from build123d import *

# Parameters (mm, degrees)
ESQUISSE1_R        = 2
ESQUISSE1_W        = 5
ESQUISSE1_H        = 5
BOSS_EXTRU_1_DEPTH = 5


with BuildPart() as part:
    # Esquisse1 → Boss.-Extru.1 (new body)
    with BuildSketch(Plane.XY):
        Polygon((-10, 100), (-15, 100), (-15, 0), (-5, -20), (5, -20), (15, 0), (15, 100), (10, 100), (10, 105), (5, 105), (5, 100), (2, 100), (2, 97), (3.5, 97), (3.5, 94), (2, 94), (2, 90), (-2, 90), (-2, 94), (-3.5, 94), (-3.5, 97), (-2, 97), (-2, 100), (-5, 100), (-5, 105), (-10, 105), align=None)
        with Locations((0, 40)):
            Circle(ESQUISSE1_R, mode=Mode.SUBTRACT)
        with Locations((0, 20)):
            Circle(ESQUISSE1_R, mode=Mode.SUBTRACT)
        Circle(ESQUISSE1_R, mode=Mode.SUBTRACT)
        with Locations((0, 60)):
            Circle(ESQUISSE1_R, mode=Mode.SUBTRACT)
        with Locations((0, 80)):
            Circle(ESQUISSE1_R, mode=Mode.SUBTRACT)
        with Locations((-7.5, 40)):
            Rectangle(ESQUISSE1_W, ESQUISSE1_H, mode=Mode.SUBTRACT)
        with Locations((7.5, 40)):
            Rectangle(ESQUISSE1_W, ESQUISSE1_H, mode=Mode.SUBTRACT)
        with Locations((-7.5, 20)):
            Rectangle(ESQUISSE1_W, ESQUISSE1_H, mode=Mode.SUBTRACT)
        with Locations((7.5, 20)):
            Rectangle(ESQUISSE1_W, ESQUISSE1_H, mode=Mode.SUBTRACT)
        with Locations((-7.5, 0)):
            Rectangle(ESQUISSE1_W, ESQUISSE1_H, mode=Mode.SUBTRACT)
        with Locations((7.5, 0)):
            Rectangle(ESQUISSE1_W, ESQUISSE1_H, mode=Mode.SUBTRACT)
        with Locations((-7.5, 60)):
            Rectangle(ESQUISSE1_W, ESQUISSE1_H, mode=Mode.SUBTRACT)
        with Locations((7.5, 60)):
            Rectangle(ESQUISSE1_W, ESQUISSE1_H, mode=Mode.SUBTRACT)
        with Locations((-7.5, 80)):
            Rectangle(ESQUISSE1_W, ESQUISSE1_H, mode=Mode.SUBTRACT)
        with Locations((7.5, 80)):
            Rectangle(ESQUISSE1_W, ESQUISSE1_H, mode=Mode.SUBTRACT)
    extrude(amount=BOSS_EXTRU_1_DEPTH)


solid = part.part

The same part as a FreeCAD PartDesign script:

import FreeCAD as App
import Part
import Sketcher
from FreeCAD import Vector

doc = App.newDocument("Part")
body = doc.addObject("PartDesign::Body", "Body")

sketch1 = body.newObject("Sketcher::SketchObject", "Sketch")
sketch1.AttachmentSupport = (doc.getObject("XY_Plane"), [""])
sketch1.MapMode = "FlatFace"
sketch1.addGeometry(Part.LineSegment(Vector(-10, 100, 0), Vector(-15, 100, 0)), False)
sketch1.addGeometry(Part.LineSegment(Vector(-15, 100, 0), Vector(-15, 0, 0)), False)
sketch1.addGeometry(Part.LineSegment(Vector(-15, 0, 0), Vector(-5, -20, 0)), False)
sketch1.addGeometry(Part.LineSegment(Vector(-5, -20, 0), Vector(5, -20, 0)), False)
sketch1.addGeometry(Part.LineSegment(Vector(5, -20, 0), Vector(15, 0, 0)), False)
sketch1.addGeometry(Part.LineSegment(Vector(15, 0, 0), Vector(15, 100, 0)), False)
sketch1.addGeometry(Part.LineSegment(Vector(15, 100, 0), Vector(10, 100, 0)), False)
sketch1.addGeometry(Part.LineSegment(Vector(10, 100, 0), Vector(10, 105, 0)), False)
sketch1.addGeometry(Part.LineSegment(Vector(10, 105, 0), Vector(5, 105, 0)), False)
sketch1.addGeometry(Part.LineSegment(Vector(5, 105, 0), Vector(5, 100, 0)), False)
sketch1.addGeometry(Part.LineSegment(Vector(5, 100, 0), Vector(2, 100, 0)), False)
sketch1.addGeometry(Part.LineSegment(Vector(2, 100, 0), Vector(2, 97, 0)), False)
sketch1.addGeometry(Part.LineSegment(Vector(2, 97, 0), Vector(3.5, 97, 0)), False)
sketch1.addGeometry(Part.LineSegment(Vector(3.5, 97, 0), Vector(3.5, 94, 0)), False)
sketch1.addGeometry(Part.LineSegment(Vector(3.5, 94, 0), Vector(2, 94, 0)), False)
sketch1.addGeometry(Part.LineSegment(Vector(2, 94, 0), Vector(2, 90, 0)), False)
sketch1.addGeometry(Part.LineSegment(Vector(2, 90, 0), Vector(-2, 90, 0)), False)
sketch1.addGeometry(Part.LineSegment(Vector(-2, 90, 0), Vector(-2, 94, 0)), False)
sketch1.addGeometry(Part.LineSegment(Vector(-2, 94, 0), Vector(-3.5, 94, 0)), False)
sketch1.addGeometry(Part.LineSegment(Vector(-3.5, 94, 0), Vector(-3.5, 97, 0)), False)
sketch1.addGeometry(Part.LineSegment(Vector(-3.5, 97, 0), Vector(-2, 97, 0)), False)
sketch1.addGeometry(Part.LineSegment(Vector(-2, 97, 0), Vector(-2, 100, 0)), False)
sketch1.addGeometry(Part.LineSegment(Vector(-2, 100, 0), Vector(-5, 100, 0)), False)
sketch1.addGeometry(Part.LineSegment(Vector(-5, 100, 0), Vector(-5, 105, 0)), False)
sketch1.addGeometry(Part.LineSegment(Vector(-5, 105, 0), Vector(-10, 105, 0)), False)
sketch1.addGeometry(Part.LineSegment(Vector(-10, 105, 0), Vector(-10, 100, 0)), False)
sketch1.addGeometry(Part.LineSegment(Vector(-5, -2.5, 0), Vector(-10, -2.5, 0)), False)
sketch1.addGeometry(Part.LineSegment(Vector(-10, -2.5, 0), Vector(-10, 2.5, 0)), False)
sketch1.addGeometry(Part.LineSegment(Vector(-10, 2.5, 0), Vector(-5, 2.5, 0)), False)
sketch1.addGeometry(Part.LineSegment(Vector(-5, 2.5, 0), Vector(-5, -2.5, 0)), False)
sketch1.addGeometry(Part.LineSegment(Vector(-5, 17.5, 0), Vector(-10, 17.5, 0)), False)
sketch1.addGeometry(Part.LineSegment(Vector(-10, 17.5, 0), Vector(-10, 22.5, 0)), False)
sketch1.addGeometry(Part.LineSegment(Vector(-10, 22.5, 0), Vector(-5, 22.5, 0)), False)
sketch1.addGeometry(Part.LineSegment(Vector(-5, 22.5, 0), Vector(-5, 17.5, 0)), False)
sketch1.addGeometry(Part.Circle(Vector(0, 0, 0), Vector(0, 0, 1), 2), False)
sketch1.addGeometry(Part.LineSegment(Vector(10, -2.5, 0), Vector(5, -2.5, 0)), False)
sketch1.addGeometry(Part.LineSegment(Vector(5, -2.5, 0), Vector(5, 2.5, 0)), False)
sketch1.addGeometry(Part.LineSegment(Vector(5, 2.5, 0), Vector(10, 2.5, 0)), False)
sketch1.addGeometry(Part.LineSegment(Vector(10, 2.5, 0), Vector(10, -2.5, 0)), False)
sketch1.addGeometry(Part.Circle(Vector(0, 20, 0), Vector(0, 0, 1), 2), False)
sketch1.addGeometry(Part.LineSegment(Vector(10, 17.5, 0), Vector(5, 17.5, 0)), False)
sketch1.addGeometry(Part.LineSegment(Vector(5, 17.5, 0), Vector(5, 22.5, 0)), False)
sketch1.addGeometry(Part.LineSegment(Vector(5, 22.5, 0), Vector(10, 22.5, 0)), False)
sketch1.addGeometry(Part.LineSegment(Vector(10, 22.5, 0), Vector(10, 17.5, 0)), False)
sketch1.addGeometry(Part.LineSegment(Vector(-5, 37.5, 0), Vector(-10, 37.5, 0)), False)
sketch1.addGeometry(Part.LineSegment(Vector(-10, 37.5, 0), Vector(-10, 42.5, 0)), False)
sketch1.addGeometry(Part.LineSegment(Vector(-10, 42.5, 0), Vector(-5, 42.5, 0)), False)
sketch1.addGeometry(Part.LineSegment(Vector(-5, 42.5, 0), Vector(-5, 37.5, 0)), False)
sketch1.addGeometry(Part.LineSegment(Vector(-5, 57.5, 0), Vector(-10, 57.5, 0)), False)
sketch1.addGeometry(Part.LineSegment(Vector(-10, 57.5, 0), Vector(-10, 62.5, 0)), False)
sketch1.addGeometry(Part.LineSegment(Vector(-10, 62.5, 0), Vector(-5, 62.5, 0)), False)
sketch1.addGeometry(Part.LineSegment(Vector(-5, 62.5, 0), Vector(-5, 57.5, 0)), False)
sketch1.addGeometry(Part.LineSegment(Vector(-5, 77.5, 0), Vector(-10, 77.5, 0)), False)
sketch1.addGeometry(Part.LineSegment(Vector(-10, 77.5, 0), Vector(-10, 82.5, 0)), False)
sketch1.addGeometry(Part.LineSegment(Vector(-10, 82.5, 0), Vector(-5, 82.5, 0)), False)
sketch1.addGeometry(Part.LineSegment(Vector(-5, 82.5, 0), Vector(-5, 77.5, 0)), False)
sketch1.addGeometry(Part.Circle(Vector(0, 40, 0), Vector(0, 0, 1), 2), False)
sketch1.addGeometry(Part.Circle(Vector(0, 60, 0), Vector(0, 0, 1), 2), False)
sketch1.addGeometry(Part.LineSegment(Vector(10, 37.5, 0), Vector(5, 37.5, 0)), False)
sketch1.addGeometry(Part.LineSegment(Vector(5, 37.5, 0), Vector(5, 42.5, 0)), False)
sketch1.addGeometry(Part.LineSegment(Vector(5, 42.5, 0), Vector(10, 42.5, 0)), False)
sketch1.addGeometry(Part.LineSegment(Vector(10, 42.5, 0), Vector(10, 37.5, 0)), False)
sketch1.addGeometry(Part.LineSegment(Vector(10, 57.5, 0), Vector(5, 57.5, 0)), False)
sketch1.addGeometry(Part.LineSegment(Vector(5, 57.5, 0), Vector(5, 62.5, 0)), False)
sketch1.addGeometry(Part.LineSegment(Vector(5, 62.5, 0), Vector(10, 62.5, 0)), False)
sketch1.addGeometry(Part.LineSegment(Vector(10, 62.5, 0), Vector(10, 57.5, 0)), False)
sketch1.addGeometry(Part.Circle(Vector(0, 80, 0), Vector(0, 0, 1), 2), False)
sketch1.addGeometry(Part.LineSegment(Vector(10, 77.5, 0), Vector(5, 77.5, 0)), False)
sketch1.addGeometry(Part.LineSegment(Vector(5, 77.5, 0), Vector(5, 82.5, 0)), False)
sketch1.addGeometry(Part.LineSegment(Vector(5, 82.5, 0), Vector(10, 82.5, 0)), False)
sketch1.addGeometry(Part.LineSegment(Vector(10, 82.5, 0), Vector(10, 77.5, 0)), False)
sketch1.addConstraint(Sketcher.Constraint("Coincident", 0, 2, 1, 1))
sketch1.addConstraint(Sketcher.Constraint("Coincident", 1, 2, 2, 1))
sketch1.addConstraint(Sketcher.Constraint("Coincident", 2, 2, 3, 1))
sketch1.addConstraint(Sketcher.Constraint("Coincident", 3, 2, 4, 1))
sketch1.addConstraint(Sketcher.Constraint("Coincident", 4, 2, 5, 1))
sketch1.addConstraint(Sketcher.Constraint("Coincident", 5, 2, 6, 1))
sketch1.addConstraint(Sketcher.Constraint("Coincident", 6, 2, 7, 1))
sketch1.addConstraint(Sketcher.Constraint("Coincident", 7, 2, 8, 1))
sketch1.addConstraint(Sketcher.Constraint("Coincident", 8, 2, 9, 1))
sketch1.addConstraint(Sketcher.Constraint("Coincident", 9, 2, 10, 1))
sketch1.addConstraint(Sketcher.Constraint("Coincident", 10, 2, 11, 1))
sketch1.addConstraint(Sketcher.Constraint("Coincident", 11, 2, 12, 1))
sketch1.addConstraint(Sketcher.Constraint("Coincident", 12, 2, 13, 1))
sketch1.addConstraint(Sketcher.Constraint("Coincident", 13, 2, 14, 1))
sketch1.addConstraint(Sketcher.Constraint("Coincident", 14, 2, 15, 1))
sketch1.addConstraint(Sketcher.Constraint("Coincident", 15, 2, 16, 1))
sketch1.addConstraint(Sketcher.Constraint("Coincident", 16, 2, 17, 1))
sketch1.addConstraint(Sketcher.Constraint("Coincident", 17, 2, 18, 1))
sketch1.addConstraint(Sketcher.Constraint("Coincident", 18, 2, 19, 1))
sketch1.addConstraint(Sketcher.Constraint("Coincident", 19, 2, 20, 1))
sketch1.addConstraint(Sketcher.Constraint("Coincident", 20, 2, 21, 1))
sketch1.addConstraint(Sketcher.Constraint("Coincident", 21, 2, 22, 1))
sketch1.addConstraint(Sketcher.Constraint("Coincident", 22, 2, 23, 1))
sketch1.addConstraint(Sketcher.Constraint("Coincident", 23, 2, 24, 1))
sketch1.addConstraint(Sketcher.Constraint("Coincident", 24, 2, 25, 1))
sketch1.addConstraint(Sketcher.Constraint("Coincident", 25, 2, 0, 1))
sketch1.addConstraint(Sketcher.Constraint("Coincident", 26, 2, 27, 1))
sketch1.addConstraint(Sketcher.Constraint("Coincident", 27, 2, 28, 1))
sketch1.addConstraint(Sketcher.Constraint("Coincident", 28, 2, 29, 1))
sketch1.addConstraint(Sketcher.Constraint("Coincident", 29, 2, 26, 1))
sketch1.addConstraint(Sketcher.Constraint("Coincident", 30, 2, 31, 1))
sketch1.addConstraint(Sketcher.Constraint("Coincident", 31, 2, 32, 1))
sketch1.addConstraint(Sketcher.Constraint("Coincident", 32, 2, 33, 1))
sketch1.addConstraint(Sketcher.Constraint("Coincident", 33, 2, 30, 1))
sketch1.addConstraint(Sketcher.Constraint("Coincident", 35, 2, 36, 1))
sketch1.addConstraint(Sketcher.Constraint("Coincident", 36, 2, 37, 1))
sketch1.addConstraint(Sketcher.Constraint("Coincident", 37, 2, 38, 1))
sketch1.addConstraint(Sketcher.Constraint("Coincident", 38, 2, 35, 1))
sketch1.addConstraint(Sketcher.Constraint("Coincident", 40, 2, 41, 1))
sketch1.addConstraint(Sketcher.Constraint("Coincident", 41, 2, 42, 1))
sketch1.addConstraint(Sketcher.Constraint("Coincident", 42, 2, 43, 1))
sketch1.addConstraint(Sketcher.Constraint("Coincident", 43, 2, 40, 1))
sketch1.addConstraint(Sketcher.Constraint("Coincident", 44, 2, 45, 1))
sketch1.addConstraint(Sketcher.Constraint("Coincident", 45, 2, 46, 1))
sketch1.addConstraint(Sketcher.Constraint("Coincident", 46, 2, 47, 1))
sketch1.addConstraint(Sketcher.Constraint("Coincident", 47, 2, 44, 1))
sketch1.addConstraint(Sketcher.Constraint("Coincident", 48, 2, 49, 1))
sketch1.addConstraint(Sketcher.Constraint("Coincident", 49, 2, 50, 1))
sketch1.addConstraint(Sketcher.Constraint("Coincident", 50, 2, 51, 1))
sketch1.addConstraint(Sketcher.Constraint("Coincident", 51, 2, 48, 1))
sketch1.addConstraint(Sketcher.Constraint("Coincident", 52, 2, 53, 1))
sketch1.addConstraint(Sketcher.Constraint("Coincident", 53, 2, 54, 1))
sketch1.addConstraint(Sketcher.Constraint("Coincident", 54, 2, 55, 1))
sketch1.addConstraint(Sketcher.Constraint("Coincident", 55, 2, 52, 1))
sketch1.addConstraint(Sketcher.Constraint("Coincident", 58, 2, 59, 1))
sketch1.addConstraint(Sketcher.Constraint("Coincident", 59, 2, 60, 1))
sketch1.addConstraint(Sketcher.Constraint("Coincident", 60, 2, 61, 1))
sketch1.addConstraint(Sketcher.Constraint("Coincident", 61, 2, 58, 1))
sketch1.addConstraint(Sketcher.Constraint("Coincident", 62, 2, 63, 1))
sketch1.addConstraint(Sketcher.Constraint("Coincident", 63, 2, 64, 1))
sketch1.addConstraint(Sketcher.Constraint("Coincident", 64, 2, 65, 1))
sketch1.addConstraint(Sketcher.Constraint("Coincident", 65, 2, 62, 1))
sketch1.addConstraint(Sketcher.Constraint("Coincident", 67, 2, 68, 1))
sketch1.addConstraint(Sketcher.Constraint("Coincident", 68, 2, 69, 1))
sketch1.addConstraint(Sketcher.Constraint("Coincident", 69, 2, 70, 1))
sketch1.addConstraint(Sketcher.Constraint("Coincident", 70, 2, 67, 1))
sketch1.addConstraint(Sketcher.Constraint("Horizontal", 0))
sketch1.addConstraint(Sketcher.Constraint("Vertical", 1))
sketch1.addConstraint(Sketcher.Constraint("Horizontal", 3))
sketch1.addConstraint(Sketcher.Constraint("Vertical", 5))
sketch1.addConstraint(Sketcher.Constraint("Horizontal", 6))
sketch1.addConstraint(Sketcher.Constraint("Vertical", 7))
sketch1.addConstraint(Sketcher.Constraint("Horizontal", 8))
sketch1.addConstraint(Sketcher.Constraint("Vertical", 9))
sketch1.addConstraint(Sketcher.Constraint("Horizontal", 10))
sketch1.addConstraint(Sketcher.Constraint("Vertical", 11))
sketch1.addConstraint(Sketcher.Constraint("Horizontal", 12))
sketch1.addConstraint(Sketcher.Constraint("Vertical", 13))
sketch1.addConstraint(Sketcher.Constraint("Horizontal", 14))
sketch1.addConstraint(Sketcher.Constraint("Vertical", 15))
sketch1.addConstraint(Sketcher.Constraint("Horizontal", 16))
sketch1.addConstraint(Sketcher.Constraint("Vertical", 17))
sketch1.addConstraint(Sketcher.Constraint("Horizontal", 18))
sketch1.addConstraint(Sketcher.Constraint("Vertical", 19))
sketch1.addConstraint(Sketcher.Constraint("Horizontal", 20))
sketch1.addConstraint(Sketcher.Constraint("Vertical", 21))
sketch1.addConstraint(Sketcher.Constraint("Horizontal", 22))
sketch1.addConstraint(Sketcher.Constraint("Vertical", 23))
sketch1.addConstraint(Sketcher.Constraint("Horizontal", 24))
sketch1.addConstraint(Sketcher.Constraint("Vertical", 25))
sketch1.addConstraint(Sketcher.Constraint("Horizontal", 26))
sketch1.addConstraint(Sketcher.Constraint("Vertical", 27))
sketch1.addConstraint(Sketcher.Constraint("Horizontal", 28))
sketch1.addConstraint(Sketcher.Constraint("Vertical", 29))
sketch1.addConstraint(Sketcher.Constraint("Horizontal", 30))
sketch1.addConstraint(Sketcher.Constraint("Vertical", 31))
sketch1.addConstraint(Sketcher.Constraint("Horizontal", 32))
sketch1.addConstraint(Sketcher.Constraint("Vertical", 33))
sketch1.addConstraint(Sketcher.Constraint("Horizontal", 35))
sketch1.addConstraint(Sketcher.Constraint("Vertical", 36))
sketch1.addConstraint(Sketcher.Constraint("Horizontal", 37))
sketch1.addConstraint(Sketcher.Constraint("Vertical", 38))
sketch1.addConstraint(Sketcher.Constraint("Horizontal", 40))
sketch1.addConstraint(Sketcher.Constraint("Vertical", 41))
sketch1.addConstraint(Sketcher.Constraint("Horizontal", 42))
sketch1.addConstraint(Sketcher.Constraint("Vertical", 43))
sketch1.addConstraint(Sketcher.Constraint("Horizontal", 44))
sketch1.addConstraint(Sketcher.Constraint("Vertical", 45))
sketch1.addConstraint(Sketcher.Constraint("Horizontal", 46))
sketch1.addConstraint(Sketcher.Constraint("Vertical", 47))
sketch1.addConstraint(Sketcher.Constraint("Horizontal", 48))
sketch1.addConstraint(Sketcher.Constraint("Vertical", 49))
sketch1.addConstraint(Sketcher.Constraint("Horizontal", 50))
sketch1.addConstraint(Sketcher.Constraint("Vertical", 51))
sketch1.addConstraint(Sketcher.Constraint("Horizontal", 52))
sketch1.addConstraint(Sketcher.Constraint("Vertical", 53))
sketch1.addConstraint(Sketcher.Constraint("Horizontal", 54))
sketch1.addConstraint(Sketcher.Constraint("Vertical", 55))
sketch1.addConstraint(Sketcher.Constraint("Horizontal", 58))
sketch1.addConstraint(Sketcher.Constraint("Vertical", 59))
sketch1.addConstraint(Sketcher.Constraint("Horizontal", 60))
sketch1.addConstraint(Sketcher.Constraint("Vertical", 61))
sketch1.addConstraint(Sketcher.Constraint("Horizontal", 62))
sketch1.addConstraint(Sketcher.Constraint("Vertical", 63))
sketch1.addConstraint(Sketcher.Constraint("Horizontal", 64))
sketch1.addConstraint(Sketcher.Constraint("Vertical", 65))
sketch1.addConstraint(Sketcher.Constraint("Horizontal", 67))
sketch1.addConstraint(Sketcher.Constraint("Vertical", 68))
sketch1.addConstraint(Sketcher.Constraint("Horizontal", 69))
sketch1.addConstraint(Sketcher.Constraint("Vertical", 70))
sketch1.addConstraint(Sketcher.Constraint("Coincident", 34, 3, -1, 1))
sketch1.addConstraint(Sketcher.Constraint("Equal", 34, 39))
sketch1.addConstraint(Sketcher.Constraint("Equal", 39, 56))
sketch1.addConstraint(Sketcher.Constraint("Equal", 56, 57))
sketch1.addConstraint(Sketcher.Constraint("Equal", 57, 66))
sketch1.addConstraint(Sketcher.Constraint("Symmetric", 1, 2, 4, 2, -1, 1))
sketch1.addConstraint(Sketcher.Constraint("Symmetric", 28, 2, 35, 2, -1, 1))
sketch1.addConstraint(Sketcher.Constraint("Symmetric", 26, 2, 37, 2, -1, 1))
sketch1.addConstraint(Sketcher.Constraint("Symmetric", 14, 2, 17, 2, -2))
sketch1.addConstraint(Sketcher.Constraint("Symmetric", 12, 2, 19, 2, -2))
sketch1.addConstraint(Sketcher.Constraint("Symmetric", 10, 2, 21, 2, -2))
sketch1.addConstraint(Sketcher.Constraint("Symmetric", 8, 2, 23, 2, -2))
sketch1.addConstraint(Sketcher.Constraint("Symmetric", 6, 2, 25, 2, -2))
sketch1.addConstraint(Sketcher.Constraint("Symmetric", 33, 2, 40, 2, -2))
sketch1.addConstraint(Sketcher.Constraint("Symmetric", 31, 2, 42, 2, -2))
sketch1.addConstraint(Sketcher.Constraint("Symmetric", 47, 2, 58, 2, -2))
sketch1.addConstraint(Sketcher.Constraint("Symmetric", 45, 2, 60, 2, -2))
sketch1.addConstraint(Sketcher.Constraint("Symmetric", 51, 2, 62, 2, -2))
sketch1.addConstraint(Sketcher.Constraint("Symmetric", 49, 2, 64, 2, -2))
sketch1.addConstraint(Sketcher.Constraint("Symmetric", 55, 2, 67, 2, -2))
sketch1.addConstraint(Sketcher.Constraint("Symmetric", 53, 2, 69, 2, -2))
sketch1.addConstraint(Sketcher.Constraint("PointOnObject", 39, 3, -2))
sketch1.addConstraint(Sketcher.Constraint("PointOnObject", 56, 3, -2))
sketch1.addConstraint(Sketcher.Constraint("PointOnObject", 57, 3, -2))
sketch1.addConstraint(Sketcher.Constraint("PointOnObject", 66, 3, -2))
sketch1.addConstraint(Sketcher.Constraint("PointOnObject", 1, 2, -1))
sketch1.addConstraint(Sketcher.Constraint("Horizontal", 6, 2, 9, 2))
sketch1.addConstraint(Sketcher.Constraint("Horizontal", 29, 2, 35, 2))
sketch1.addConstraint(Sketcher.Constraint("Vertical", 3, 2, 8, 2))
sketch1.addConstraint(Sketcher.Constraint("Vertical", 11, 2, 14, 2))
sketch1.addConstraint(Sketcher.Constraint("Vertical", 2, 2, 22, 2))
sketch1.addConstraint(Sketcher.Constraint("Vertical", 25, 2, 26, 2))
sketch1.addConstraint(Sketcher.Constraint("Vertical", 23, 2, 28, 2))
sketch1.addConstraint(Sketcher.Constraint("Vertical", 27, 2, 30, 2))
sketch1.addConstraint(Sketcher.Constraint("Vertical", 29, 2, 32, 2))
sketch1.addConstraint(Sketcher.Constraint("Vertical", 31, 2, 44, 2))
sketch1.addConstraint(Sketcher.Constraint("Vertical", 33, 2, 46, 2))
sketch1.addConstraint(Sketcher.Constraint("Vertical", 45, 2, 48, 2))
sketch1.addConstraint(Sketcher.Constraint("Vertical", 47, 2, 50, 2))
sketch1.addConstraint(Sketcher.Constraint("Vertical", 49, 2, 52, 2))
sketch1.addConstraint(Sketcher.Constraint("Vertical", 51, 2, 54, 2))
sketch1.addConstraint(Sketcher.Constraint("Equal", 6, 8))
sketch1.addConstraint(Sketcher.Constraint("Equal", 69, 7))
sketch1.addConstraint(Sketcher.Constraint("Equal", 22, 11))
sketch1.addConstraint(Sketcher.Constraint("Equal", 11, 13))
sketch1.addConstraint(Sketcher.Constraint("Equal", 16, 15))
sketch1.addConstraint(Sketcher.Constraint("Equal", 25, 27))
sketch1.addConstraint(Sketcher.Constraint("Equal", 29, 31))
sketch1.addConstraint(Sketcher.Constraint("Equal", 43, 45))
sketch1.addConstraint(Sketcher.Constraint("Equal", 47, 49))
sketch1.addConstraint(Sketcher.Constraint("Equal", 51, 53))
sketch1.addConstraint(Sketcher.Constraint("Diameter", 34, 4.0))
sketch1.addConstraint(Sketcher.Constraint("DistanceX", 0, 2, 0, 1, 5.0))
sketch1.addConstraint(Sketcher.Constraint("DistanceX", 3, 1, 3, 2, 10.0))
sketch1.addConstraint(Sketcher.Constraint("DistanceX", 10, 2, 10, 1, 3.0))
sketch1.addConstraint(Sketcher.Constraint("DistanceY", 1, 2, 1, 1, 100.0))
sketch1.addConstraint(Sketcher.Constraint("DistanceX", 12, 1, 12, 2, 1.5))
sketch1.addConstraint(Sketcher.Constraint("DistanceY", -1, 1, 39, 3, 20.0))
sketch1.addConstraint(Sketcher.Constraint("DistanceY", -1, 1, 56, 3, 40.0))
sketch1.addConstraint(Sketcher.Constraint("DistanceY", -1, 1, 57, 3, 60.0))
sketch1.addConstraint(Sketcher.Constraint("DistanceY", -1, 1, 66, 3, 80.0))
sketch1.addConstraint(Sketcher.Constraint("DistanceY", 2, 2, -1, 1, 20.0))
sketch1.addConstraint(Sketcher.Constraint("DistanceY", -1, 1, 30, 2, 17.5))
sketch1.addConstraint(Sketcher.Constraint("DistanceY", -1, 1, 44, 2, 37.5))
sketch1.addConstraint(Sketcher.Constraint("DistanceY", -1, 1, 48, 2, 57.5))
sketch1.addConstraint(Sketcher.Constraint("DistanceY", -1, 1, 52, 2, 77.5))
pad1 = body.newObject("PartDesign::Pad", "Pad")
pad1.Profile = sketch1
pad1.Length = 5

doc.recompute()
